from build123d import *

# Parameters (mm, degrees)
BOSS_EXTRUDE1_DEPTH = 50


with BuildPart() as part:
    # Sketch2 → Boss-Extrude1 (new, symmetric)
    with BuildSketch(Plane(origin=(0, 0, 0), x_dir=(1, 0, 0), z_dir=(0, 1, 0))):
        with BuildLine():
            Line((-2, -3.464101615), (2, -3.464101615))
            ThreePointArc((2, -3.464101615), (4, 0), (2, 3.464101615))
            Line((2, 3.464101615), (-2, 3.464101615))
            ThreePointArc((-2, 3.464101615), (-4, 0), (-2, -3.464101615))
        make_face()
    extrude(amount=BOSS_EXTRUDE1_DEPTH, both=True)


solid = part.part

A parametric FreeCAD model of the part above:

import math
import FreeCAD as App
import Part
import Sketcher
from FreeCAD import Vector

doc = App.newDocument("Part")
body = doc.addObject("PartDesign::Body", "Body")

sketch1 = doc.addObject("Sketcher::SketchObject", "Sketch")
body.addObject(sketch1)
sketch1.AttachmentSupport = (doc.XZ_Plane, [""])
sketch1.MapMode = "FlatFace"
sketch1.addGeometry([
    Part.LineSegment(Vector(-2, 3.5, 0), Vector(2, 3.5, 0)),
    Part.ArcOfCircle(Part.Circle(Vector(0, 0, 0), Vector(0, 0, 1), 4), math.radians(-60), math.radians(60)),
    Part.LineSegment(Vector(2, -3.5, 0), Vector(-2, -3.5, 0)),
    Part.ArcOfCircle(Part.Circle(Vector(0, 0, 0), Vector(0, 0, 1), 4), math.radians(120), math.radians(240)),
], False)
sketch1.addConstraint([
    Sketcher.Constraint("Coincident", 0, 2, 1, 2),
    Sketcher.Constraint("Coincident", 1, 1, 2, 1),
    Sketcher.Constraint("Coincident", 2, 2, 3, 2),
    Sketcher.Constraint("Coincident", 3, 1, 0, 1),
    Sketcher.Constraint("Horizontal", 0),
    Sketcher.Constraint("Horizontal", 2),
    Sketcher.Constraint("Coincident", 1, 3, -1, 1),
    Sketcher.Constraint("Coincident", 3, 3, -1, 1),
    Sketcher.Constraint("Equal", 1, 3),
    Sketcher.Constraint("Vertical", 0, 2, 1, 1),
    Sketcher.Constraint("Radius", 1, 4.0),
    Sketcher.Constraint("DistanceX", 0, 1, 0, 2, 4.0),
])
pad1 = doc.addObject("PartDesign::Pad", "Pad")
body.addObject(pad1)
pad1.Profile = sketch1
pad1.Length = 100
pad1.Midplane = True

doc.recompute()
